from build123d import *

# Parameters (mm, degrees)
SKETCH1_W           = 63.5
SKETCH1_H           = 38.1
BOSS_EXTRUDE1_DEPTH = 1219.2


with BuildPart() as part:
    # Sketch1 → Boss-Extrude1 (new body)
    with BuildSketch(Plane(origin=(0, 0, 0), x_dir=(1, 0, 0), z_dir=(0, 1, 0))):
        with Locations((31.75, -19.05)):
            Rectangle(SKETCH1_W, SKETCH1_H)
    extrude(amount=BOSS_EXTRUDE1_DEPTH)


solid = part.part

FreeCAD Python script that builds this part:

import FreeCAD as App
import Part
import Sketcher
Q = App.Units.Quantity

doc = App.newDocument("Part")
body = doc.addObject("PartDesign::Body", "Body")

sketch1 = doc.addObject("Sketcher::SketchObject", "Sketch")
body.addObject(sketch1)
sketch1.AttachmentSupport = (doc.XZ_Plane, [""])
sketch1.MapMode = "FlatFace"
sketch1.addGeometry(Part.LineSegment(App.Vector(0, 0, 0), App.Vector(0, 38.1, 0)), False)
sketch1.addGeometry(Part.LineSegment(App.Vector(0, 38.1, 0), App.Vector(63.5, 38.1, 0)), False)
sketch1.addGeometry(Part.LineSegment(App.Vector(63.5, 38.1, 0), App.Vector(63.5, 0, 0)), False)
sketch1.addGeometry(Part.LineSegment(App.Vector(63.5, 0, 0), App.Vector(0, 0, 0)), False)
sketch1.addConstraint(Sketcher.Constraint("Coincident", 0, 2, 1, 1))
sketch1.addConstraint(Sketcher.Constraint("Coincident", 1, 2, 2, 1))
sketch1.addConstraint(Sketcher.Constraint("Coincident", 2, 2, 3, 1))
sketch1.addConstraint(Sketcher.Constraint("Coincident", 3, 2, 0, 1))
sketch1.addConstraint(Sketcher.Constraint("Vertical", 0))
sketch1.addConstraint(Sketcher.Constraint("Horizontal", 1))
sketch1.addConstraint(Sketcher.Constraint("Vertical", 2))
sketch1.addConstraint(Sketcher.Constraint("Horizontal", 3))
sketch1.addConstraint(Sketcher.Constraint("Coincident", 3, 2, -1, 1))
sketch1.addConstraint(Sketcher.Constraint("DistanceX", 1, 1, 1, 2, Q("2.5 in")))
sketch1.addConstraint(Sketcher.Constraint("DistanceY", 0, 1, 0, 2, Q("1.5 in")))
pad1 = doc.addObject("PartDesign::Pad", "Pad")
body.addObject(pad1)
pad1.Profile = sketch1
pad1.Length = Q("48 in")
pad1.Reversed = True

doc.recompute()
